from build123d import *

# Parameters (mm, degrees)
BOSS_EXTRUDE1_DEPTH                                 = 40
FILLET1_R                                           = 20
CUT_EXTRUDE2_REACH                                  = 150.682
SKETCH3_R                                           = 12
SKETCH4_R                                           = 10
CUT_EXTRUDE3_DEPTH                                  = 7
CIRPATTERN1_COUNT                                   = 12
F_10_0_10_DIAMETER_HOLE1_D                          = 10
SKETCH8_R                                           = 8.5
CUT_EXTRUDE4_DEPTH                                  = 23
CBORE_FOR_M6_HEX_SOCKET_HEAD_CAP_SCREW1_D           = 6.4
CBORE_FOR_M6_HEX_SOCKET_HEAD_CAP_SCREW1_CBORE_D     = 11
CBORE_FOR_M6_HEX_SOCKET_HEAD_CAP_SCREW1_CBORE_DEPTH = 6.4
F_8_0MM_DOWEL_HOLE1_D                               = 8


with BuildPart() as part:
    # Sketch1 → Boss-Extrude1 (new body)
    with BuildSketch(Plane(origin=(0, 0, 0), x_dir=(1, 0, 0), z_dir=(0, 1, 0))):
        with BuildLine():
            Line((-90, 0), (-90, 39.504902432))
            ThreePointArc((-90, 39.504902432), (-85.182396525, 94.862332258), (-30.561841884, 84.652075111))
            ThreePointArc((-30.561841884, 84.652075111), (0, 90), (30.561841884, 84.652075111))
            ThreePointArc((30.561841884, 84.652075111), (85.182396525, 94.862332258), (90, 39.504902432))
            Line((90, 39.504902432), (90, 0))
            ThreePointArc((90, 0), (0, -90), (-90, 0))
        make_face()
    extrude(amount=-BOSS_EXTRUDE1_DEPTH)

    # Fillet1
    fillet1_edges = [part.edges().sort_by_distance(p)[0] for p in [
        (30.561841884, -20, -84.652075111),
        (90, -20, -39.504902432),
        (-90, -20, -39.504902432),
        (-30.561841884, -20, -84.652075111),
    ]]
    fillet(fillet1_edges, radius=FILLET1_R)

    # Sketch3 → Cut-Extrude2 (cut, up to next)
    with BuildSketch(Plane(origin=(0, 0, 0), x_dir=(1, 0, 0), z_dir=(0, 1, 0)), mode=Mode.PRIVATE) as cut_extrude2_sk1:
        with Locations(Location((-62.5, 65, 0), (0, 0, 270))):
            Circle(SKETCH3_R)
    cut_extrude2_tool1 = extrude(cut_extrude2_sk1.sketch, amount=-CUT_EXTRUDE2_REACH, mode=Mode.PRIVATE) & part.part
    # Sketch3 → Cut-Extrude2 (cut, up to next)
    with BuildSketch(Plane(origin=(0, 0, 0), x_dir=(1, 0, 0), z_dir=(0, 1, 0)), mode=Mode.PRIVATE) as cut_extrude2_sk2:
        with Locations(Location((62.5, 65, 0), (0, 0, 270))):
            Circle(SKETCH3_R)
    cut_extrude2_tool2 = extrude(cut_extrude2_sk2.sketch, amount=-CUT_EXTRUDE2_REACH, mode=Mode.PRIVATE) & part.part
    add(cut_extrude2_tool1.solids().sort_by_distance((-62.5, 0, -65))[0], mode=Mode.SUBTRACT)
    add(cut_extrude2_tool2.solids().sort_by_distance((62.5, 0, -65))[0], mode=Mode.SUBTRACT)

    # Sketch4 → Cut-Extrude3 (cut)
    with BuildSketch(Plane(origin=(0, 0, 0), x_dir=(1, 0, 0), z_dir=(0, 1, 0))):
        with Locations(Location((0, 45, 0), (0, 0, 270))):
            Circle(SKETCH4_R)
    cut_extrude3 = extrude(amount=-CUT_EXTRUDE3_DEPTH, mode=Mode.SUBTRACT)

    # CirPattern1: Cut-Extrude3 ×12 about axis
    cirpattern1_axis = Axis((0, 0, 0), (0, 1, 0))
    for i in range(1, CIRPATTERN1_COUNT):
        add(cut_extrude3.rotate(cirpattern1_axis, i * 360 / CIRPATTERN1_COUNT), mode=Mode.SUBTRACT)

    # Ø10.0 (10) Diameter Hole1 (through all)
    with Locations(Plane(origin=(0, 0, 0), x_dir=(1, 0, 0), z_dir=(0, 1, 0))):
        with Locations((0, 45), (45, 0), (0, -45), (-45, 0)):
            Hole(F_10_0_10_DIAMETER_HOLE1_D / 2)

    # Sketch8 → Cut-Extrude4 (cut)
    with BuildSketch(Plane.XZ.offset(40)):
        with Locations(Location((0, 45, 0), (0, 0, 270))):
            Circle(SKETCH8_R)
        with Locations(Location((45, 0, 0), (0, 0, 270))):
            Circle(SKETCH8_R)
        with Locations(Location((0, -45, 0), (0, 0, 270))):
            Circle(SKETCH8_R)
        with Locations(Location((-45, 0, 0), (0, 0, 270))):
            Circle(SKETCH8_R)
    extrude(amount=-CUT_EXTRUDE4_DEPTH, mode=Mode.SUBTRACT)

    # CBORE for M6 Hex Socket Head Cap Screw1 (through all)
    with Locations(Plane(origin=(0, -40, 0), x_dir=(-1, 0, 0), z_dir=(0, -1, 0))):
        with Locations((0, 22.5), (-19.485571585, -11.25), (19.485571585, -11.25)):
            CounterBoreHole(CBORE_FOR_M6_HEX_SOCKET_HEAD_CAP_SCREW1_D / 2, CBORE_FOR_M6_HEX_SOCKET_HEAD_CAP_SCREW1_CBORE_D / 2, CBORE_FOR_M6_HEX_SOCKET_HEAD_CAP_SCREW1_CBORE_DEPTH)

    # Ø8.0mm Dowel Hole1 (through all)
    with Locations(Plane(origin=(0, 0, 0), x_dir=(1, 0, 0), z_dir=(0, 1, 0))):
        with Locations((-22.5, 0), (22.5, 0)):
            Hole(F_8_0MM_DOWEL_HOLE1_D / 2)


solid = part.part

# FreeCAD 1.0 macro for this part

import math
import FreeCAD as App
import Part
import Sketcher


def edges_at(feature, points):
    """Names of the edges that pass closest to the given points."""
    edges = feature.Shape.Edges
    near = lambda p: min(range(len(edges)), key=lambda i: edges[i].distToShape(Part.Vertex(*p))[0])
    return sorted({f"Edge{near(p) + 1}" for p in points})

doc = App.newDocument("Part")
body = doc.addObject("PartDesign::Body", "Body")

# Sketch on XZ plane
sketch1 = doc.addObject("Sketcher::SketchObject", "Sketch")
body.addObject(sketch1)
sketch1.AttachmentSupport = (doc.XZ_Plane, [""])
sketch1.MapMode = "FlatFace"
sketch1.addGeometry(Part.LineSegment(App.Vector(-90, -40, 0), App.Vector(-90, 0, 0)), False)
sketch1.addGeometry(Part.ArcOfCircle(Part.Circle(App.Vector(0, 0, 0), App.Vector(0, 0, 1), 90), math.radians(0), math.radians(180)), False)
sketch1.addGeometry(Part.LineSegment(App.Vector(90, 0, 0), App.Vector(90, -40, 0)), False)
sketch1.addGeometry(Part.ArcOfCircle(Part.Circle(App.Vector(62, -65, 0), App.Vector(0, 0, 1), 38), math.radians(-148), math.radians(43)), False)
sketch1.addGeometry(Part.ArcOfCircle(Part.Circle(App.Vector(0, 0, 0), App.Vector(0, 0, 1), 90), math.radians(-110), math.radians(-70)), False)
sketch1.addGeometry(Part.ArcOfCircle(Part.Circle(App.Vector(-62, -65, 0), App.Vector(0, 0, 1), 38), math.radians(137), math.radians(328)), False)
sketch1.addConstraint(Sketcher.Constraint("Tangent", 0, 2, 1, 2))
sketch1.addConstraint(Sketcher.Constraint("Tangent", 1, 1, 2, 1))
sketch1.addConstraint(Sketcher.Constraint("Coincident", 2, 2, 3, 2))
sketch1.addConstraint(Sketcher.Constraint("Coincident", 3, 1, 4, 2))
sketch1.addConstraint(Sketcher.Constraint("Coincident", 4, 1, 5, 2))
sketch1.addConstraint(Sketcher.Constraint("Coincident", 5, 1, 0, 1))
sketch1.addConstraint(Sketcher.Constraint("Vertical", 0))
sketch1.addConstraint(Sketcher.Constraint("Vertical", 2))
sketch1.addConstraint(Sketcher.Constraint("Coincident", 1, 3, -1, 1))
sketch1.addConstraint(Sketcher.Constraint("Coincident", 4, 3, -1, 1))
sketch1.addConstraint(Sketcher.Constraint("Equal", 1, 4))
sketch1.addConstraint(Sketcher.Constraint("Equal", 3, 5))
sketch1.addConstraint(Sketcher.Constraint("Symmetric", 3, 3, 5, 3, -2))
sketch1.addConstraint(Sketcher.Constraint("Radius", 1, 90.0))
sketch1.addConstraint(Sketcher.Constraint("Radius", 3, 37.5))
sketch1.addConstraint(Sketcher.Constraint("DistanceY", 3, 3, -1, 1, 65.0))
sketch1.addConstraint(Sketcher.Constraint("DistanceX", 5, 3, 3, 3, 125.0))
pad1 = doc.addObject("PartDesign::Pad", "Pad")
body.addObject(pad1)
pad1.Profile = sketch1
pad1.Length = 40
doc.recompute()

fillet = doc.addObject("PartDesign::Fillet", "Fillet")
body.addObject(fillet)
fillet.Base = (pad1, edges_at(pad1, [
    (30.562, -20, -84.652),
    (90, -20, -39.505),
    (-90, -20, -39.505),
    (-30.562, -20, -84.652),
]))
fillet.Radius = 20

# Sketch on XZ plane
sketch2 = doc.addObject("Sketcher::SketchObject", "Sketch001")
body.addObject(sketch2)
sketch2.AttachmentSupport = (doc.XZ_Plane, [""])
sketch2.MapMode = "FlatFace"
sketch2.addGeometry(Part.Circle(App.Vector(-62, -65, 0), App.Vector(0, 0, 1), 12), False)
sketch2.addConstraint(Sketcher.Constraint("Diameter", 0, 24.0))
sketch2.addConstraint(Sketcher.Constraint("DistanceY", 0, 3, -1, 1, 65.0))
sketch2.addConstraint(Sketcher.Constraint("DistanceX", 0, 3, -1, 1, 62.5))
pocket1 = doc.addObject("PartDesign::Pocket", "Pocket")
body.addObject(pocket1)
pocket1.Profile = sketch2
pocket1.Type = "UpToFirst"
pocket1.Reversed = True

# Sketch on XZ plane
sketch3 = doc.addObject("Sketcher::SketchObject", "Sketch002")
body.addObject(sketch3)
sketch3.AttachmentSupport = (doc.XZ_Plane, [""])
sketch3.MapMode = "FlatFace"
sketch3.addGeometry(Part.Circle(App.Vector(62, -65, 0), App.Vector(0, 0, 1), 12), False)
sketch3.addConstraint(Sketcher.Constraint("Diameter", 0, 24.0))
sketch3.addConstraint(Sketcher.Constraint("DistanceY", 0, 3, -1, 1, 65.0))
sketch3.addConstraint(Sketcher.Constraint("DistanceX", -1, 1, 0, 3, 62.5))
pocket2 = doc.addObject("PartDesign::Pocket", "Pocket001")
body.addObject(pocket2)
pocket2.Profile = sketch3
pocket2.Type = "UpToFirst"
pocket2.Reversed = True

# Sketch on XZ plane
sketch4 = doc.addObject("Sketcher::SketchObject", "Sketch003")
body.addObject(sketch4)
sketch4.AttachmentSupport = (doc.XZ_Plane, [""])
sketch4.MapMode = "FlatFace"
sketch4.addGeometry(Part.Circle(App.Vector(0, -45, 0), App.Vector(0, 0, 1), 10), False)
sketch4.addConstraint(Sketcher.Constraint("PointOnObject", 0, 3, -2))
sketch4.addConstraint(Sketcher.Constraint("Diameter", 0, 20.0))
sketch4.addConstraint(Sketcher.Constraint("DistanceY", 0, 3, -1, 1, 45.0))
pocket3 = doc.addObject("PartDesign::Pocket", "Pocket002")
body.addObject(pocket3)
pocket3.Profile = sketch4
pocket3.Length = 7
pocket3.Reversed = True
doc.recompute()

polarpattern = doc.addObject("PartDesign::PolarPattern", "PolarPattern")
body.addObject(polarpattern)
polarpattern.Originals = [pocket3]
polarpattern.Axis = (doc.Y_Axis, [""])
polarpattern.Angle = 360
polarpattern.Occurrences = 12
body.Tip = polarpattern

# Sketch on XZ plane
sketch5 = doc.addObject("Sketcher::SketchObject", "Sketch004")
body.addObject(sketch5)
sketch5.AttachmentSupport = (doc.XZ_Plane, [""])
sketch5.MapMode = "FlatFace"
sketch5.addGeometry(Part.Circle(App.Vector(0, -45, 0), App.Vector(0, 0, 1), 5), False)
sketch5.addGeometry(Part.Circle(App.Vector(45, 0, 0), App.Vector(0, 0, 1), 5), False)
sketch5.addGeometry(Part.Circle(App.Vector(0, 45, 0), App.Vector(0, 0, 1), 5), False)
sketch5.addGeometry(Part.Circle(App.Vector(-45, 0, 0), App.Vector(0, 0, 1), 5), False)
sketch5.addConstraint(Sketcher.Constraint("Equal", 0, 1))
sketch5.addConstraint(Sketcher.Constraint("Equal", 1, 2))
sketch5.addConstraint(Sketcher.Constraint("Equal", 2, 3))
sketch5.addConstraint(Sketcher.Constraint("Symmetric", 0, 3, 2, 3, -1, 1))
sketch5.addConstraint(Sketcher.Constraint("Symmetric", 1, 3, 3, 3, -1, 1))
sketch5.addConstraint(Sketcher.Constraint("PointOnObject", 0, 3, -2))
sketch5.addConstraint(Sketcher.Constraint("PointOnObject", 1, 3, -1))
sketch5.addConstraint(Sketcher.Constraint("Diameter", 0, 10.0))
sketch5.addConstraint(Sketcher.Constraint("DistanceY", 0, 3, -1, 1, 45.0))
sketch5.addConstraint(Sketcher.Constraint("DistanceX", -1, 1, 1, 3, 45.0))
doc.recompute()
hole = doc.addObject("PartDesign::Hole", "Hole")
body.addObject(hole)
hole.Profile = sketch5
hole.ThreadType = "None"
hole.Diameter = 10
hole.DepthType = "ThroughAll"
hole.Reversed = True

# Sketch on XZ plane
sketch6 = doc.addObject("Sketcher::SketchObject", "Sketch005")
body.addObject(sketch6)
sketch6.AttachmentSupport = (doc.XZ_Plane, [""])
sketch6.MapMode = "FlatFace"
sketch6.AttachmentOffset = App.Placement(App.Vector(0, 0, 40), App.Rotation())
sketch6.addGeometry(Part.Circle(App.Vector(0, 45, 0), App.Vector(0, 0, 1), 8), False)
sketch6.addGeometry(Part.Circle(App.Vector(45, 0, 0), App.Vector(0, 0, 1), 8), False)
sketch6.addGeometry(Part.Circle(App.Vector(0, -45, 0), App.Vector(0, 0, 1), 8), False)
sketch6.addGeometry(Part.Circle(App.Vector(-45, 0, 0), App.Vector(0, 0, 1), 8), False)
sketch6.addConstraint(Sketcher.Constraint("Equal", 0, 1))
sketch6.addConstraint(Sketcher.Constraint("Equal", 1, 2))
sketch6.addConstraint(Sketcher.Constraint("Equal", 2, 3))
sketch6.addConstraint(Sketcher.Constraint("Symmetric", 0, 3, 2, 3, -1, 1))
sketch6.addConstraint(Sketcher.Constraint("Symmetric", 1, 3, 3, 3, -1, 1))
sketch6.addConstraint(Sketcher.Constraint("PointOnObject", 0, 3, -2))
sketch6.addConstraint(Sketcher.Constraint("PointOnObject", 1, 3, -1))
sketch6.addConstraint(Sketcher.Constraint("Diameter", 0, 17.0))
sketch6.addConstraint(Sketcher.Constraint("DistanceY", -1, 1, 0, 3, 45.0))
sketch6.addConstraint(Sketcher.Constraint("DistanceX", -1, 1, 1, 3, 45.0))
pocket4 = doc.addObject("PartDesign::Pocket", "Pocket003")
body.addObject(pocket4)
pocket4.Profile = sketch6
pocket4.Length = 23

# Sketch on XZ plane
sketch7 = doc.addObject("Sketcher::SketchObject", "Sketch006")
body.addObject(sketch7)
sketch7.AttachmentSupport = (doc.XZ_Plane, [""])
sketch7.MapMode = "FlatFace"
sketch7.AttachmentOffset = App.Placement(App.Vector(0, 0, 40), App.Rotation())
sketch7.addGeometry(Part.Circle(App.Vector(0, -22.5, 0), App.Vector(0, 0, 1), 3.2), False)
sketch7.addGeometry(Part.Circle(App.Vector(19.5, 11.2, 0), App.Vector(0, 0, 1), 3.2), False)
sketch7.addGeometry(Part.Circle(App.Vector(-19.5, 11.2, 0), App.Vector(0, 0, 1), 3.2), False)
sketch7.addConstraint(Sketcher.Constraint("Equal", 0, 1))
sketch7.addConstraint(Sketcher.Constraint("Equal", 1, 2))
sketch7.addConstraint(Sketcher.Constraint("Symmetric", 1, 3, 2, 3, -2))
sketch7.addConstraint(Sketcher.Constraint("PointOnObject", 0, 3, -2))
sketch7.addConstraint(Sketcher.Constraint("Diameter", 0, 6.4))
sketch7.addConstraint(Sketcher.Constraint("DistanceY", 0, 3, -1, 1, 22.5))
sketch7.addConstraint(Sketcher.Constraint("DistanceY", -1, 1, 1, 3, 11.25))
sketch7.addConstraint(Sketcher.Constraint("DistanceX", -1, 1, 1, 3, 19.485572))
doc.recompute()
hole2 = doc.addObject("PartDesign::Hole", "Hole001")
body.addObject(hole2)
hole2.Profile = sketch7
hole2.ThreadType = "None"
hole2.Diameter = 6.4
hole2.DepthType = "ThroughAll"
hole2.HoleCutType = "Counterbore"
hole2.HoleCutDiameter = 11
hole2.HoleCutDepth = 6.4

# Sketch on XZ plane
sketch8 = doc.addObject("Sketcher::SketchObject", "Sketch007")
body.addObject(sketch8)
sketch8.AttachmentSupport = (doc.XZ_Plane, [""])
sketch8.MapMode = "FlatFace"
sketch8.addGeometry(Part.Circle(App.Vector(-22.5, 0, 0), App.Vector(0, 0, 1), 4), False)
sketch8.addGeometry(Part.Circle(App.Vector(22.5, 0, 0), App.Vector(0, 0, 1), 4), False)
sketch8.addConstraint(Sketcher.Constraint("Equal", 0, 1))
sketch8.addConstraint(Sketcher.Constraint("Symmetric", 0, 3, 1, 3, -1, 1))
sketch8.addConstraint(Sketcher.Constraint("PointOnObject", 0, 3, -1))
sketch8.addConstraint(Sketcher.Constraint("Diameter", 0, 8.0))
sketch8.addConstraint(Sketcher.Constraint("DistanceX", 0, 3, 1, 3, 45.0))
doc.recompute()
hole3 = doc.addObject("PartDesign::Hole", "Hole002")
body.addObject(hole3)
hole3.Profile = sketch8
hole3.ThreadType = "None"
hole3.Diameter = 8
hole3.DepthType = "ThroughAll"
hole3.Reversed = True

doc.recompute()
